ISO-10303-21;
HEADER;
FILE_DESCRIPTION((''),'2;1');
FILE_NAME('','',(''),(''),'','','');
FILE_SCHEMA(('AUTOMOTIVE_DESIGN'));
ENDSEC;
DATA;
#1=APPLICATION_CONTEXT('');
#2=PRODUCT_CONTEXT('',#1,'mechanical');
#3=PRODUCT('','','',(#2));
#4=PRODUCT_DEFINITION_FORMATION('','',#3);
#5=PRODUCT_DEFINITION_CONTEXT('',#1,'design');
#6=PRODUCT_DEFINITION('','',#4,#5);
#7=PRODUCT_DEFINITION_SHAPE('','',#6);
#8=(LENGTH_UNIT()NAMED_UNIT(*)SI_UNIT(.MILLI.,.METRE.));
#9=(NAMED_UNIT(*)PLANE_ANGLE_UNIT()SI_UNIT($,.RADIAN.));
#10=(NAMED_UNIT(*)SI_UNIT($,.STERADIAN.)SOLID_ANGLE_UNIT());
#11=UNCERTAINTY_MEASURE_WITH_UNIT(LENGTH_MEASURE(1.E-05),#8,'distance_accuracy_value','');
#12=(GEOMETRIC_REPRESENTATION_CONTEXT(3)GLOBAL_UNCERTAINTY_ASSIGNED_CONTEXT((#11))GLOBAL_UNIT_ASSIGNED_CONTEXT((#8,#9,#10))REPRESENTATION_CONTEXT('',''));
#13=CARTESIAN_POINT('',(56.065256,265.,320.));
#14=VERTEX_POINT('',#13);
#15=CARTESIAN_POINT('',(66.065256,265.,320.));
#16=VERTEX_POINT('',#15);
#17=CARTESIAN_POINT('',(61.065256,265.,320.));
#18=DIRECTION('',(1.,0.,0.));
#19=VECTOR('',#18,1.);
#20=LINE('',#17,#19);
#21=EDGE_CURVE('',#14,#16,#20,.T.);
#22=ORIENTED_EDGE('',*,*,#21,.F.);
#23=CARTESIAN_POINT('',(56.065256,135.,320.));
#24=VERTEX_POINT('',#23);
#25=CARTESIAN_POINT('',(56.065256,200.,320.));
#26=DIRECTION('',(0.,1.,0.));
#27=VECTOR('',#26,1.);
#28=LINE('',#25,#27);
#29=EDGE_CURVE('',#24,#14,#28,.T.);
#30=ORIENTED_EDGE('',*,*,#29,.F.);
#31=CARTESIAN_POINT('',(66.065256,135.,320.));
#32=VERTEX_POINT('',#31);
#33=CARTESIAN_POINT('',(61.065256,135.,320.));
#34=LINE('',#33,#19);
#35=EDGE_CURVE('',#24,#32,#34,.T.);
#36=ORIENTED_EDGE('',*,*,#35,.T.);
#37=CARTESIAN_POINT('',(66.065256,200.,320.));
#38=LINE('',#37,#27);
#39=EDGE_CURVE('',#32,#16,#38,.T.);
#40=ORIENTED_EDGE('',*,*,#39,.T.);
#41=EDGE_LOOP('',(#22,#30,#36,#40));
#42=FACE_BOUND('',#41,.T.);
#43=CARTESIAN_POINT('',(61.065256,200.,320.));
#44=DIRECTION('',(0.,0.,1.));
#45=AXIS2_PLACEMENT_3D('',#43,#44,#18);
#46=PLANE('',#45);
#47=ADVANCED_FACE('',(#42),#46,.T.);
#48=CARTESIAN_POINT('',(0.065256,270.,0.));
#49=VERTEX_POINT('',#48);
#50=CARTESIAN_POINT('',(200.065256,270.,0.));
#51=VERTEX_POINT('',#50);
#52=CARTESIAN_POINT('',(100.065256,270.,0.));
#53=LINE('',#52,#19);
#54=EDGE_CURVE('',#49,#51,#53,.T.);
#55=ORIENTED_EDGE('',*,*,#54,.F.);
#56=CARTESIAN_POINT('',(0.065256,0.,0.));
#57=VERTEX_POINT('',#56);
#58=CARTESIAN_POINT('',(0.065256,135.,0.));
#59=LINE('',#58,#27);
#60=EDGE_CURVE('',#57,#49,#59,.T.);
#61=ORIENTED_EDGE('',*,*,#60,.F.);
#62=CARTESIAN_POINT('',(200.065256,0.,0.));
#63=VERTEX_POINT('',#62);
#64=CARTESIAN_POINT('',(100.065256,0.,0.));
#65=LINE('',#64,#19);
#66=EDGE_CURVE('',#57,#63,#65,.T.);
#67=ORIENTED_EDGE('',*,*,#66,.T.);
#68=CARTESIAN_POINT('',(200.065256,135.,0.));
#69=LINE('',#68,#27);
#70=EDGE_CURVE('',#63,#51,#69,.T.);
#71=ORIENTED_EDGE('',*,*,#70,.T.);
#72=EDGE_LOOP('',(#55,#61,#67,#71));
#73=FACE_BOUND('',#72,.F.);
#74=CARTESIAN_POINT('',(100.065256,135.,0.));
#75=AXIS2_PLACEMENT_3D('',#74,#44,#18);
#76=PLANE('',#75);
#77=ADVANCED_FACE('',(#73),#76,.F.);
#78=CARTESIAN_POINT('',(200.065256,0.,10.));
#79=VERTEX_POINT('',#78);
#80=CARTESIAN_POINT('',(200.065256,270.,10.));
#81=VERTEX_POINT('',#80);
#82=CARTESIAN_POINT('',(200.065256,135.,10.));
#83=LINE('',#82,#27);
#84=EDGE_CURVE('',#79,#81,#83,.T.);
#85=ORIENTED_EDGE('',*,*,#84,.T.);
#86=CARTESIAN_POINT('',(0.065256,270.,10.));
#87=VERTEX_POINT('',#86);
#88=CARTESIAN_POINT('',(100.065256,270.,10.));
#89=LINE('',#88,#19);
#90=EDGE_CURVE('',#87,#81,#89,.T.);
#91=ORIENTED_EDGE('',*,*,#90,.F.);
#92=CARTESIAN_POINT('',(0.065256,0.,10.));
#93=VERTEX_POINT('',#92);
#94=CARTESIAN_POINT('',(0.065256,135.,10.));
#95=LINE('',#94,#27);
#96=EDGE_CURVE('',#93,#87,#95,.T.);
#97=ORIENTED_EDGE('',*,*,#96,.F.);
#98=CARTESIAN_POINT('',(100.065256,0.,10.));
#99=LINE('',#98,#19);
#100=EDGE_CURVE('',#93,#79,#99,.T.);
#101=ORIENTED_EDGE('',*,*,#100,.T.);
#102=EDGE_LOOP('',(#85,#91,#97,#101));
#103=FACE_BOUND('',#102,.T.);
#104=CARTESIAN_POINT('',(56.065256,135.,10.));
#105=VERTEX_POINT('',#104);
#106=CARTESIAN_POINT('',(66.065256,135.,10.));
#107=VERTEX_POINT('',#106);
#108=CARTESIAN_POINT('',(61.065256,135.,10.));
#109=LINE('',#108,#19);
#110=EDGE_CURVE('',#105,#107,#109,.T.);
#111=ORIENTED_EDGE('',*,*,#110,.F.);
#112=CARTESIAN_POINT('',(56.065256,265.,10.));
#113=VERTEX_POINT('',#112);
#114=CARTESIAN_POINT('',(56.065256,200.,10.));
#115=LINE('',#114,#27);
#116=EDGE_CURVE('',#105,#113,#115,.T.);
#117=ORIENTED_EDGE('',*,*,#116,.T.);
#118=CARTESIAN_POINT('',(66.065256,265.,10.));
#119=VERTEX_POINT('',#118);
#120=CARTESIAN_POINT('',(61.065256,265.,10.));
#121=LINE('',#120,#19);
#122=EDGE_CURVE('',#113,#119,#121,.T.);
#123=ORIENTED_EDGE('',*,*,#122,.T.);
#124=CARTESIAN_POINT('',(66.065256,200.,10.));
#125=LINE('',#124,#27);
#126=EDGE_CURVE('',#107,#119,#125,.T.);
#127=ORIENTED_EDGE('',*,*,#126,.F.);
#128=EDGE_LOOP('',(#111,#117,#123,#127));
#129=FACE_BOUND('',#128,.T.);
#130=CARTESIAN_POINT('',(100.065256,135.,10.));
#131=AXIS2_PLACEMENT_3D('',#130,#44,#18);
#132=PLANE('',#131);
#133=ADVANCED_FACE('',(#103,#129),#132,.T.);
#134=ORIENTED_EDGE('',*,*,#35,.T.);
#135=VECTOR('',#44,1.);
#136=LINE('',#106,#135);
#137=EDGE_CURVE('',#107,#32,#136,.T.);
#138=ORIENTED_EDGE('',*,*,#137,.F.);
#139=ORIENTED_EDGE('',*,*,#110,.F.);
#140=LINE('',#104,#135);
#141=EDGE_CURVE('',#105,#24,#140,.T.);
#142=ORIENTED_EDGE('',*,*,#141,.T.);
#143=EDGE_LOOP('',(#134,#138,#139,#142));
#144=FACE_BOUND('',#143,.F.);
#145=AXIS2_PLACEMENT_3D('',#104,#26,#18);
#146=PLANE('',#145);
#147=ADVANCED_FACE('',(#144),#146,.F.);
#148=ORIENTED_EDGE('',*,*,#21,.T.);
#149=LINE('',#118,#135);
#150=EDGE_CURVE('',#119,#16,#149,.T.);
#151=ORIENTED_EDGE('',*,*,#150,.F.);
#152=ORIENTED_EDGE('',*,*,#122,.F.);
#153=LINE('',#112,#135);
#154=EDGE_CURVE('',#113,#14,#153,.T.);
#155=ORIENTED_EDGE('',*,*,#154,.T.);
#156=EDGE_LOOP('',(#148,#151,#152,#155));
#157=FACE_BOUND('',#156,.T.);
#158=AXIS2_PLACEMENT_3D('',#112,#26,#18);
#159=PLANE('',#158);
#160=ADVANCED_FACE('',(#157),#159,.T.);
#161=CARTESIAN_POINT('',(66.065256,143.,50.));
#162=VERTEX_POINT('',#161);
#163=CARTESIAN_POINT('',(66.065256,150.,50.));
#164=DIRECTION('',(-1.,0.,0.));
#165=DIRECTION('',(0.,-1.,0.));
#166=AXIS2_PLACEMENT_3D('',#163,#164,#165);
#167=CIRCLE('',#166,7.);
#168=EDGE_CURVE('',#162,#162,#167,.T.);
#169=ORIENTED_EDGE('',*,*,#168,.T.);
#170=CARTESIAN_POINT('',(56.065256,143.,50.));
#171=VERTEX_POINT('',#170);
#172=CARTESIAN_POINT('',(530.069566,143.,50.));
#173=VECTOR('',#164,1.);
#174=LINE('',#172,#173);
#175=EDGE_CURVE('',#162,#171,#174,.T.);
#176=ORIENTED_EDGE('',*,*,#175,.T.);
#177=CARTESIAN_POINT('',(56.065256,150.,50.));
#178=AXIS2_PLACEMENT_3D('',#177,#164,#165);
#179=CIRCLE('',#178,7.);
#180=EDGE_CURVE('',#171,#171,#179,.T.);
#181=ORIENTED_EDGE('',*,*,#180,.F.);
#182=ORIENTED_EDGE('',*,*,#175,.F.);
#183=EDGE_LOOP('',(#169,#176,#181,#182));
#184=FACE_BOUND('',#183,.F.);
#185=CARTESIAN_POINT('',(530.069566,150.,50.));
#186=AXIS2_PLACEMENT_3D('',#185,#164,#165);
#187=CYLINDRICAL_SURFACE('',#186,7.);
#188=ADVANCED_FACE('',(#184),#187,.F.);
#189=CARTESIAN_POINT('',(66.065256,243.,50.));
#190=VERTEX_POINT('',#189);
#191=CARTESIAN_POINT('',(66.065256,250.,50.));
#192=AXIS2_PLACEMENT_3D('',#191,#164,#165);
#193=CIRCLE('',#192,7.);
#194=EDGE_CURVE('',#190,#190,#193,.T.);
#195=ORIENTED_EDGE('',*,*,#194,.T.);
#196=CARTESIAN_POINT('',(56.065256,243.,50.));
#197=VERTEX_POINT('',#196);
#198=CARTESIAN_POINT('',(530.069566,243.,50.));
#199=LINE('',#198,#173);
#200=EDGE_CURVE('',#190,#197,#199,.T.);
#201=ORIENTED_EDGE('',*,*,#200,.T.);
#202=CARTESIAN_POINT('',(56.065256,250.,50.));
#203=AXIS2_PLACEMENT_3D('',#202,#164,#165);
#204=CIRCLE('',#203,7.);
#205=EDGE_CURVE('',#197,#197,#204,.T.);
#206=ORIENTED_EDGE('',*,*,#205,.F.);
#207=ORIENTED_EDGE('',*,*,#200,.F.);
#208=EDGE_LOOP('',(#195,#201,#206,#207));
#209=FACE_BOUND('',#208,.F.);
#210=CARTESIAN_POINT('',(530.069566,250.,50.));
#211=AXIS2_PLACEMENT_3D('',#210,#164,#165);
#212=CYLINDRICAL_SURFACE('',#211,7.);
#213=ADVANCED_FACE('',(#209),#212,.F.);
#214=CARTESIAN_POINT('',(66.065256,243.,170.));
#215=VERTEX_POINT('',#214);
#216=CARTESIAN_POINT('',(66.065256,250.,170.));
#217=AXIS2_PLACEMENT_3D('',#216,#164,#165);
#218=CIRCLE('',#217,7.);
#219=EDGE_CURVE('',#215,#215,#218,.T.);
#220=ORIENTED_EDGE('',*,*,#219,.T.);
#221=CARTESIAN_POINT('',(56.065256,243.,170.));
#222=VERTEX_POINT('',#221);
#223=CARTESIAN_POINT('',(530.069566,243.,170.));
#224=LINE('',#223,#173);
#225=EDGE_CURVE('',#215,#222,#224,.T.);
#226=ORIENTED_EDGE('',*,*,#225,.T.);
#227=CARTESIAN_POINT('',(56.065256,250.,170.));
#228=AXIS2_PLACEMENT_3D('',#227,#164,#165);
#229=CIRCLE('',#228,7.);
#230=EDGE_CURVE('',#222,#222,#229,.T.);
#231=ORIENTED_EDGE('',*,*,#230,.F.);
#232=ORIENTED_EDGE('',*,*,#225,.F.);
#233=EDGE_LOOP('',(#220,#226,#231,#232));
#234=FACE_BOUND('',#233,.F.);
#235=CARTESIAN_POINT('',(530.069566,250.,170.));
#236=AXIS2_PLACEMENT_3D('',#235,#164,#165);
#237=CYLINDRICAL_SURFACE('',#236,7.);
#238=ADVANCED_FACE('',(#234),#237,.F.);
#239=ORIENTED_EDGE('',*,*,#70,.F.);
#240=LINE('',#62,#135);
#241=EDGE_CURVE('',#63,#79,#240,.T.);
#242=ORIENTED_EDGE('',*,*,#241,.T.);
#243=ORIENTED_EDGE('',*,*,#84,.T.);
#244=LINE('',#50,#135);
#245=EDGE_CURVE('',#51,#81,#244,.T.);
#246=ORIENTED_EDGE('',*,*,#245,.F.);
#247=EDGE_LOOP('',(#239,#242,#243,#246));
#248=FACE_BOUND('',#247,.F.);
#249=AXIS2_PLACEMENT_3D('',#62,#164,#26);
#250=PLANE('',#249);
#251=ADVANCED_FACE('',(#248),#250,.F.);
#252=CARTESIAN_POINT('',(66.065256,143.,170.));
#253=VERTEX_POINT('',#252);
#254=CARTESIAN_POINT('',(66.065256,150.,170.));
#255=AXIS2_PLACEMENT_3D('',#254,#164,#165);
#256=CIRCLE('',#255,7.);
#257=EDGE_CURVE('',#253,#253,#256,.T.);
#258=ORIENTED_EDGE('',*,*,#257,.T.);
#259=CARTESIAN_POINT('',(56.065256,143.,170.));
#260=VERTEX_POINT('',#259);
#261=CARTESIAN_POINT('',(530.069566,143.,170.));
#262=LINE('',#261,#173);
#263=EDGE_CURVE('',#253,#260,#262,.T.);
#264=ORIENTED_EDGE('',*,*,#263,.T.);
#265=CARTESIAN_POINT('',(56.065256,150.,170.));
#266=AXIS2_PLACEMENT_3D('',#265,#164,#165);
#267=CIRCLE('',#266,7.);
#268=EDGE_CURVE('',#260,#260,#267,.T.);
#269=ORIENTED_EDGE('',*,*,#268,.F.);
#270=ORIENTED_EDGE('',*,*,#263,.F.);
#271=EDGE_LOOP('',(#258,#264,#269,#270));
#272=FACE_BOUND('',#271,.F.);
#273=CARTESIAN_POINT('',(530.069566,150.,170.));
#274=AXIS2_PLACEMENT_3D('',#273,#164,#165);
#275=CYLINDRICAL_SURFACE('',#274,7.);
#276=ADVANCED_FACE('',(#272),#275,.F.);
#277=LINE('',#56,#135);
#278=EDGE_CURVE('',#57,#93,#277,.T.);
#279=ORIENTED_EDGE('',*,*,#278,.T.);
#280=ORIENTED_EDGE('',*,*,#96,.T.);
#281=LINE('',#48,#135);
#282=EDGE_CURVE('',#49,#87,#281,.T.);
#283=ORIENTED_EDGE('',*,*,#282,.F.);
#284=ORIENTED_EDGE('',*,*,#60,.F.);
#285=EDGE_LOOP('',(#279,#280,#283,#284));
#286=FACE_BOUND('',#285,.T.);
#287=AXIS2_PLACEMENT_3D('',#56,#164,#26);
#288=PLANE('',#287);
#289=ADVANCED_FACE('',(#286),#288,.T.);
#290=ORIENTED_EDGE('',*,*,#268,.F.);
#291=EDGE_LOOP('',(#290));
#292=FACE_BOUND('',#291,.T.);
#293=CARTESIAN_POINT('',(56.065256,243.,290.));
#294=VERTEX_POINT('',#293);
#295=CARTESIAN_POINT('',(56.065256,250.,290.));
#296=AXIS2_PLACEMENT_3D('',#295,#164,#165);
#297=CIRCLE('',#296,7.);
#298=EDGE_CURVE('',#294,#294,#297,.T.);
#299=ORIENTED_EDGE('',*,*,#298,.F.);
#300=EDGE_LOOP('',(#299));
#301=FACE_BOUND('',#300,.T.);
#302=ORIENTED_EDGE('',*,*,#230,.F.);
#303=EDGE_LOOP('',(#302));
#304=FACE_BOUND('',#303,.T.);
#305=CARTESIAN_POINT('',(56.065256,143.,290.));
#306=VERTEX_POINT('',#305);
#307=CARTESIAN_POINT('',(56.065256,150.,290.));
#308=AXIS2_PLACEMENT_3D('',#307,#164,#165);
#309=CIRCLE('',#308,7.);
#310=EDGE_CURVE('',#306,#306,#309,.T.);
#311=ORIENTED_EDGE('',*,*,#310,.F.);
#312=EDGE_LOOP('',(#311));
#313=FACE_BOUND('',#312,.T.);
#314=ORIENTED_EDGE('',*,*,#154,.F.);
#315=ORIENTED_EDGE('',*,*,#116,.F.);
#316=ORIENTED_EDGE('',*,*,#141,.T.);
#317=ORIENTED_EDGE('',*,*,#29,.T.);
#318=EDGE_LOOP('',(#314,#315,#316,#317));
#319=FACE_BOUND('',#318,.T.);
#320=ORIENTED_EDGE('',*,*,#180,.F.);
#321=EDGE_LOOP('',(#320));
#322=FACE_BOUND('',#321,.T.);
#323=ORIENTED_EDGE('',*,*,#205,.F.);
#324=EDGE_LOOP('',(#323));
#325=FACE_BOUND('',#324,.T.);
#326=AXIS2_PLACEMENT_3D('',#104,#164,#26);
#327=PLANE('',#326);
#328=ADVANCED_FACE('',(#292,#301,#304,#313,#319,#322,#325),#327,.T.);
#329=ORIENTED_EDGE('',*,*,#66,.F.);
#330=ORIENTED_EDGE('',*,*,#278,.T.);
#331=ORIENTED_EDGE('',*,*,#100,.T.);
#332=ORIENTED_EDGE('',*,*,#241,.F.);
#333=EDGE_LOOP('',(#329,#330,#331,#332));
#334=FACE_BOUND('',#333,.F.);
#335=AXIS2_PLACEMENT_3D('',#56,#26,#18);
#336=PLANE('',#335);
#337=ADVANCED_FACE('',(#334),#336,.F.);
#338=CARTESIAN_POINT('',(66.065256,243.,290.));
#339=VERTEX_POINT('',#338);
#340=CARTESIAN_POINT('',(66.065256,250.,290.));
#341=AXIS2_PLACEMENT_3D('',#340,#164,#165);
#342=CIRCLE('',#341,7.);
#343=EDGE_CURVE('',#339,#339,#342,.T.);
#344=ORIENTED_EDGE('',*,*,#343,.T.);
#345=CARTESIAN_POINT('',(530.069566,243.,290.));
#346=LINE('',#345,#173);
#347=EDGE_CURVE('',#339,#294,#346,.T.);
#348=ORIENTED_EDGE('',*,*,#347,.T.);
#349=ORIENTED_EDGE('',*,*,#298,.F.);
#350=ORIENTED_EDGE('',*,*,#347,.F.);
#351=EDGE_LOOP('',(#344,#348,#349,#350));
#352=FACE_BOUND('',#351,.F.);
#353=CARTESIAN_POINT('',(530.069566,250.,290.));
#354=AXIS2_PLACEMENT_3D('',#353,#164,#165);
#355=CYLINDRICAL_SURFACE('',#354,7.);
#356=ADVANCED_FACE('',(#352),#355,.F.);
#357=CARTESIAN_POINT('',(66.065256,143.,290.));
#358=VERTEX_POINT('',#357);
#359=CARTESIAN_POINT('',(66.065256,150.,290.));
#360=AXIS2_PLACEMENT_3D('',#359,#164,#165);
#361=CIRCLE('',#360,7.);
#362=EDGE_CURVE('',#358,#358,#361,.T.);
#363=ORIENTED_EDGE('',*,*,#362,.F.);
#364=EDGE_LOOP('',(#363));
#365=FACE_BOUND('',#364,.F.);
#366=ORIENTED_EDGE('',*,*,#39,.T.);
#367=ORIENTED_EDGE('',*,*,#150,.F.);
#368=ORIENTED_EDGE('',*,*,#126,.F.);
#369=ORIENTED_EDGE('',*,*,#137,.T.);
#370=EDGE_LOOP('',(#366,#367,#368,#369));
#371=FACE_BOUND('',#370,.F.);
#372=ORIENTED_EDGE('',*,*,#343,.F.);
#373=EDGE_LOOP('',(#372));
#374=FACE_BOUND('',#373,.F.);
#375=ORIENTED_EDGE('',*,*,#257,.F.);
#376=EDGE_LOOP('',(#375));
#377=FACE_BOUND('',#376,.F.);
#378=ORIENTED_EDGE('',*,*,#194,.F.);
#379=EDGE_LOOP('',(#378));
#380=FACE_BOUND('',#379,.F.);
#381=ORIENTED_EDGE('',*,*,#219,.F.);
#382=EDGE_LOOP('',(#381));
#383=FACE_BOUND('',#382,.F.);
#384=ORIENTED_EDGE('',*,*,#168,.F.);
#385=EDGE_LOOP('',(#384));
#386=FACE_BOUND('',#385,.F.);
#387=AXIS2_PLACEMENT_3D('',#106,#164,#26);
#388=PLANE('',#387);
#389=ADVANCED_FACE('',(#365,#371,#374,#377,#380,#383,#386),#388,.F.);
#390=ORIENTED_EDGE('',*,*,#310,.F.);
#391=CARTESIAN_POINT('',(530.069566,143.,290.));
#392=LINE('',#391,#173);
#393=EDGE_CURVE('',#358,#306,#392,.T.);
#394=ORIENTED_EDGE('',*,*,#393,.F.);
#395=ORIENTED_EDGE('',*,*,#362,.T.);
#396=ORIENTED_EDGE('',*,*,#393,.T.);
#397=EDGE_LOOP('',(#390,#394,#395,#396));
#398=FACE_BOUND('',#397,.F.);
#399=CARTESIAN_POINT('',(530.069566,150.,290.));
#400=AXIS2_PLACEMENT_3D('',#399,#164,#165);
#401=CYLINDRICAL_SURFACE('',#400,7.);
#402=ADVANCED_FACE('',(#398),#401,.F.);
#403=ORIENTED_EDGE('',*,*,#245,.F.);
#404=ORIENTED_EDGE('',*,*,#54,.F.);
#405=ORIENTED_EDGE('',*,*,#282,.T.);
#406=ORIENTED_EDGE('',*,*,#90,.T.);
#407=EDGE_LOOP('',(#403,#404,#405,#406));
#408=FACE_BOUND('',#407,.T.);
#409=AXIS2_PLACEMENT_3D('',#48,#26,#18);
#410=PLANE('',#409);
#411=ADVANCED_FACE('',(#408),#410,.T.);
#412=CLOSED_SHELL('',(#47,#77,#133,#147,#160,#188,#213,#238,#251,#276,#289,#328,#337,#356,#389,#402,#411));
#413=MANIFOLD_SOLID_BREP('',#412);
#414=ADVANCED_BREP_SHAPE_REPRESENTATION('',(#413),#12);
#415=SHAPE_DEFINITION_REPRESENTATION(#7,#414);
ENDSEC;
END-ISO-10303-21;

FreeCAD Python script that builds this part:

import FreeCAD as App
import Part
import Sketcher


def add_polygon(sketch, points):
    """Adds a closed chain of lines whose ends are joined by coincident constraints."""
    first, n = sketch.GeometryCount, len(points)
    for a, b in zip(points, points[1:] + points[:1]):
        sketch.addGeometry(Part.LineSegment(App.Vector(*a, 0), App.Vector(*b, 0)), False)
    for i in range(n):
        sketch.addConstraint(Sketcher.Constraint("Coincident", first + i, 2, first + (i + 1) % n, 1))

doc = App.newDocument("Part")
params = doc.addObject("Spreadsheet::Sheet", "Params")
for row, (alias, value) in enumerate([
    ("sketch1_width", "200 mm"),
    ("sketch1_height", "270 mm"),
    ("pad1_length", "10 mm"),
    ("sketch2_width", "10 mm"),
    ("sketch2_height", "130 mm"),
    ("pad2_length", "310 mm"),
    ("sketch3_diameter", "14 mm"),
    ("hole_diameter", "14 mm"),
], start=1):
    params.set(f"A{row}", alias)
    params.set(f"B{row}", "=" + value)
    params.setAlias(f"B{row}", alias)

body = doc.addObject("PartDesign::Body", "Body")

# Sketch on XY plane
sketch1 = body.newObject("Sketcher::SketchObject", "Sketch")
sketch1.AttachmentSupport = (doc.getObject("XY_Plane"), [""])
sketch1.MapMode = "FlatFace"
add_polygon(sketch1, [(0.065256, 270), (0.065256, 0), (200.065256, 0), (200.065256, 270)])  # lines 0-3
sketch1.addConstraint([
    Sketcher.Constraint("Vertical", 0),
    Sketcher.Constraint("Horizontal", 1),
    Sketcher.Constraint("Vertical", 2),
    Sketcher.Constraint("Horizontal", 3),
    Sketcher.Constraint("PointOnObject", 0, 2, -1),
    Sketcher.Constraint("DistanceX", 1, 1, 1, 2, 200.0),
    Sketcher.Constraint("DistanceY", 0, 2, 0, 1, 270.0),
    Sketcher.Constraint("DistanceX", -1, 1, 0, 2, 0.065256),
])
sketch1.setExpression("Constraints[9]", "Params.sketch1_width")
sketch1.setExpression("Constraints[10]", "Params.sketch1_height")
pad1 = body.newObject("PartDesign::Pad", "Pad")
pad1.Profile = sketch1
pad1.setExpression("Length", "Params.pad1_length")

# Sketch on XY plane
sketch2 = body.newObject("Sketcher::SketchObject", "Sketch001")
sketch2.AttachmentSupport = (doc.getObject("XY_Plane"), [""])
sketch2.MapMode = "FlatFace"
sketch2.AttachmentOffset = App.Placement(App.Vector(0, 0, 10), App.Rotation())
add_polygon(sketch2, [(56.065256, 265), (56.065256, 135), (66.065256, 135), (66.065256, 265)])  # lines 0-3
sketch2.addConstraint([
    Sketcher.Constraint("Vertical", 0),
    Sketcher.Constraint("Horizontal", 1),
    Sketcher.Constraint("Vertical", 2),
    Sketcher.Constraint("Horizontal", 3),
    Sketcher.Constraint("DistanceX", 1, 1, 1, 2, 10.0),
    Sketcher.Constraint("DistanceY", 0, 2, 0, 1, 130.0),
    Sketcher.Constraint("DistanceY", -1, 1, 0, 2, 135.0),
    Sketcher.Constraint("DistanceX", -1, 1, 0, 2, 56.065256),
])
sketch2.setExpression("Constraints[8]", "Params.sketch2_width")
sketch2.setExpression("Constraints[9]", "Params.sketch2_height")
pad2 = body.newObject("PartDesign::Pad", "Pad001")
pad2.Profile = sketch2
pad2.setExpression("Length", "Params.pad2_length")

# Sketch on YZ plane
sketch3 = body.newObject("Sketcher::SketchObject", "Sketch002")
sketch3.AttachmentSupport = (doc.getObject("YZ_Plane"), [""])
sketch3.MapMode = "FlatFace"
sketch3.AttachmentOffset = App.Placement(App.Vector(0, 0, 66.065256), App.Rotation())
sketch3.addGeometry([
    Part.Circle(App.Vector(150, 170, 0), App.Vector(0, 0, 1), 7),  # 0
    Part.Circle(App.Vector(150, 50, 0), App.Vector(0, 0, 1), 7),  # 1
    Part.Circle(App.Vector(250, 50, 0), App.Vector(0, 0, 1), 7),  # 2
    Part.Circle(App.Vector(250, 170, 0), App.Vector(0, 0, 1), 7),  # 3
    Part.Circle(App.Vector(250, 290, 0), App.Vector(0, 0, 1), 7),  # 4
    Part.Circle(App.Vector(150, 290, 0), App.Vector(0, 0, 1), 7),  # 5
], False)
sketch3.addConstraint([
    Sketcher.Constraint("Equal", 0, 1),
    Sketcher.Constraint("Equal", 1, 2),
    Sketcher.Constraint("Equal", 2, 3),
    Sketcher.Constraint("Equal", 3, 4),
    Sketcher.Constraint("Equal", 4, 5),
    Sketcher.Constraint("Horizontal", 1, 3, 2, 3),
    Sketcher.Constraint("Horizontal", 0, 3, 3, 3),
    Sketcher.Constraint("Horizontal", 4, 3, 5, 3),
    Sketcher.Constraint("Vertical", 0, 3, 1, 3),
    Sketcher.Constraint("Vertical", 2, 3, 3, 3),
    Sketcher.Constraint("Vertical", 3, 3, 4, 3),
    Sketcher.Constraint("Vertical", 1, 3, 5, 3),
    Sketcher.Constraint("Diameter", 0, 14.0),
    Sketcher.Constraint("DistanceX", -1, 1, 0, 3, 150.0),
    Sketcher.Constraint("DistanceY", -1, 1, 0, 3, 170.0),
    Sketcher.Constraint("DistanceY", -1, 1, 1, 3, 50.0),
    Sketcher.Constraint("DistanceX", -1, 1, 2, 3, 250.0),
    Sketcher.Constraint("DistanceY", -1, 1, 4, 3, 290.0),
])
sketch3.setExpression("Constraints[12]", "Params.sketch3_diameter")
doc.recompute()
hole = body.newObject("PartDesign::Hole", "Hole")
hole.Profile = sketch3
hole.ThreadType = "None"
hole.setExpression("Diameter", "Params.hole_diameter")
hole.DepthType = "ThroughAll"

doc.recompute()
